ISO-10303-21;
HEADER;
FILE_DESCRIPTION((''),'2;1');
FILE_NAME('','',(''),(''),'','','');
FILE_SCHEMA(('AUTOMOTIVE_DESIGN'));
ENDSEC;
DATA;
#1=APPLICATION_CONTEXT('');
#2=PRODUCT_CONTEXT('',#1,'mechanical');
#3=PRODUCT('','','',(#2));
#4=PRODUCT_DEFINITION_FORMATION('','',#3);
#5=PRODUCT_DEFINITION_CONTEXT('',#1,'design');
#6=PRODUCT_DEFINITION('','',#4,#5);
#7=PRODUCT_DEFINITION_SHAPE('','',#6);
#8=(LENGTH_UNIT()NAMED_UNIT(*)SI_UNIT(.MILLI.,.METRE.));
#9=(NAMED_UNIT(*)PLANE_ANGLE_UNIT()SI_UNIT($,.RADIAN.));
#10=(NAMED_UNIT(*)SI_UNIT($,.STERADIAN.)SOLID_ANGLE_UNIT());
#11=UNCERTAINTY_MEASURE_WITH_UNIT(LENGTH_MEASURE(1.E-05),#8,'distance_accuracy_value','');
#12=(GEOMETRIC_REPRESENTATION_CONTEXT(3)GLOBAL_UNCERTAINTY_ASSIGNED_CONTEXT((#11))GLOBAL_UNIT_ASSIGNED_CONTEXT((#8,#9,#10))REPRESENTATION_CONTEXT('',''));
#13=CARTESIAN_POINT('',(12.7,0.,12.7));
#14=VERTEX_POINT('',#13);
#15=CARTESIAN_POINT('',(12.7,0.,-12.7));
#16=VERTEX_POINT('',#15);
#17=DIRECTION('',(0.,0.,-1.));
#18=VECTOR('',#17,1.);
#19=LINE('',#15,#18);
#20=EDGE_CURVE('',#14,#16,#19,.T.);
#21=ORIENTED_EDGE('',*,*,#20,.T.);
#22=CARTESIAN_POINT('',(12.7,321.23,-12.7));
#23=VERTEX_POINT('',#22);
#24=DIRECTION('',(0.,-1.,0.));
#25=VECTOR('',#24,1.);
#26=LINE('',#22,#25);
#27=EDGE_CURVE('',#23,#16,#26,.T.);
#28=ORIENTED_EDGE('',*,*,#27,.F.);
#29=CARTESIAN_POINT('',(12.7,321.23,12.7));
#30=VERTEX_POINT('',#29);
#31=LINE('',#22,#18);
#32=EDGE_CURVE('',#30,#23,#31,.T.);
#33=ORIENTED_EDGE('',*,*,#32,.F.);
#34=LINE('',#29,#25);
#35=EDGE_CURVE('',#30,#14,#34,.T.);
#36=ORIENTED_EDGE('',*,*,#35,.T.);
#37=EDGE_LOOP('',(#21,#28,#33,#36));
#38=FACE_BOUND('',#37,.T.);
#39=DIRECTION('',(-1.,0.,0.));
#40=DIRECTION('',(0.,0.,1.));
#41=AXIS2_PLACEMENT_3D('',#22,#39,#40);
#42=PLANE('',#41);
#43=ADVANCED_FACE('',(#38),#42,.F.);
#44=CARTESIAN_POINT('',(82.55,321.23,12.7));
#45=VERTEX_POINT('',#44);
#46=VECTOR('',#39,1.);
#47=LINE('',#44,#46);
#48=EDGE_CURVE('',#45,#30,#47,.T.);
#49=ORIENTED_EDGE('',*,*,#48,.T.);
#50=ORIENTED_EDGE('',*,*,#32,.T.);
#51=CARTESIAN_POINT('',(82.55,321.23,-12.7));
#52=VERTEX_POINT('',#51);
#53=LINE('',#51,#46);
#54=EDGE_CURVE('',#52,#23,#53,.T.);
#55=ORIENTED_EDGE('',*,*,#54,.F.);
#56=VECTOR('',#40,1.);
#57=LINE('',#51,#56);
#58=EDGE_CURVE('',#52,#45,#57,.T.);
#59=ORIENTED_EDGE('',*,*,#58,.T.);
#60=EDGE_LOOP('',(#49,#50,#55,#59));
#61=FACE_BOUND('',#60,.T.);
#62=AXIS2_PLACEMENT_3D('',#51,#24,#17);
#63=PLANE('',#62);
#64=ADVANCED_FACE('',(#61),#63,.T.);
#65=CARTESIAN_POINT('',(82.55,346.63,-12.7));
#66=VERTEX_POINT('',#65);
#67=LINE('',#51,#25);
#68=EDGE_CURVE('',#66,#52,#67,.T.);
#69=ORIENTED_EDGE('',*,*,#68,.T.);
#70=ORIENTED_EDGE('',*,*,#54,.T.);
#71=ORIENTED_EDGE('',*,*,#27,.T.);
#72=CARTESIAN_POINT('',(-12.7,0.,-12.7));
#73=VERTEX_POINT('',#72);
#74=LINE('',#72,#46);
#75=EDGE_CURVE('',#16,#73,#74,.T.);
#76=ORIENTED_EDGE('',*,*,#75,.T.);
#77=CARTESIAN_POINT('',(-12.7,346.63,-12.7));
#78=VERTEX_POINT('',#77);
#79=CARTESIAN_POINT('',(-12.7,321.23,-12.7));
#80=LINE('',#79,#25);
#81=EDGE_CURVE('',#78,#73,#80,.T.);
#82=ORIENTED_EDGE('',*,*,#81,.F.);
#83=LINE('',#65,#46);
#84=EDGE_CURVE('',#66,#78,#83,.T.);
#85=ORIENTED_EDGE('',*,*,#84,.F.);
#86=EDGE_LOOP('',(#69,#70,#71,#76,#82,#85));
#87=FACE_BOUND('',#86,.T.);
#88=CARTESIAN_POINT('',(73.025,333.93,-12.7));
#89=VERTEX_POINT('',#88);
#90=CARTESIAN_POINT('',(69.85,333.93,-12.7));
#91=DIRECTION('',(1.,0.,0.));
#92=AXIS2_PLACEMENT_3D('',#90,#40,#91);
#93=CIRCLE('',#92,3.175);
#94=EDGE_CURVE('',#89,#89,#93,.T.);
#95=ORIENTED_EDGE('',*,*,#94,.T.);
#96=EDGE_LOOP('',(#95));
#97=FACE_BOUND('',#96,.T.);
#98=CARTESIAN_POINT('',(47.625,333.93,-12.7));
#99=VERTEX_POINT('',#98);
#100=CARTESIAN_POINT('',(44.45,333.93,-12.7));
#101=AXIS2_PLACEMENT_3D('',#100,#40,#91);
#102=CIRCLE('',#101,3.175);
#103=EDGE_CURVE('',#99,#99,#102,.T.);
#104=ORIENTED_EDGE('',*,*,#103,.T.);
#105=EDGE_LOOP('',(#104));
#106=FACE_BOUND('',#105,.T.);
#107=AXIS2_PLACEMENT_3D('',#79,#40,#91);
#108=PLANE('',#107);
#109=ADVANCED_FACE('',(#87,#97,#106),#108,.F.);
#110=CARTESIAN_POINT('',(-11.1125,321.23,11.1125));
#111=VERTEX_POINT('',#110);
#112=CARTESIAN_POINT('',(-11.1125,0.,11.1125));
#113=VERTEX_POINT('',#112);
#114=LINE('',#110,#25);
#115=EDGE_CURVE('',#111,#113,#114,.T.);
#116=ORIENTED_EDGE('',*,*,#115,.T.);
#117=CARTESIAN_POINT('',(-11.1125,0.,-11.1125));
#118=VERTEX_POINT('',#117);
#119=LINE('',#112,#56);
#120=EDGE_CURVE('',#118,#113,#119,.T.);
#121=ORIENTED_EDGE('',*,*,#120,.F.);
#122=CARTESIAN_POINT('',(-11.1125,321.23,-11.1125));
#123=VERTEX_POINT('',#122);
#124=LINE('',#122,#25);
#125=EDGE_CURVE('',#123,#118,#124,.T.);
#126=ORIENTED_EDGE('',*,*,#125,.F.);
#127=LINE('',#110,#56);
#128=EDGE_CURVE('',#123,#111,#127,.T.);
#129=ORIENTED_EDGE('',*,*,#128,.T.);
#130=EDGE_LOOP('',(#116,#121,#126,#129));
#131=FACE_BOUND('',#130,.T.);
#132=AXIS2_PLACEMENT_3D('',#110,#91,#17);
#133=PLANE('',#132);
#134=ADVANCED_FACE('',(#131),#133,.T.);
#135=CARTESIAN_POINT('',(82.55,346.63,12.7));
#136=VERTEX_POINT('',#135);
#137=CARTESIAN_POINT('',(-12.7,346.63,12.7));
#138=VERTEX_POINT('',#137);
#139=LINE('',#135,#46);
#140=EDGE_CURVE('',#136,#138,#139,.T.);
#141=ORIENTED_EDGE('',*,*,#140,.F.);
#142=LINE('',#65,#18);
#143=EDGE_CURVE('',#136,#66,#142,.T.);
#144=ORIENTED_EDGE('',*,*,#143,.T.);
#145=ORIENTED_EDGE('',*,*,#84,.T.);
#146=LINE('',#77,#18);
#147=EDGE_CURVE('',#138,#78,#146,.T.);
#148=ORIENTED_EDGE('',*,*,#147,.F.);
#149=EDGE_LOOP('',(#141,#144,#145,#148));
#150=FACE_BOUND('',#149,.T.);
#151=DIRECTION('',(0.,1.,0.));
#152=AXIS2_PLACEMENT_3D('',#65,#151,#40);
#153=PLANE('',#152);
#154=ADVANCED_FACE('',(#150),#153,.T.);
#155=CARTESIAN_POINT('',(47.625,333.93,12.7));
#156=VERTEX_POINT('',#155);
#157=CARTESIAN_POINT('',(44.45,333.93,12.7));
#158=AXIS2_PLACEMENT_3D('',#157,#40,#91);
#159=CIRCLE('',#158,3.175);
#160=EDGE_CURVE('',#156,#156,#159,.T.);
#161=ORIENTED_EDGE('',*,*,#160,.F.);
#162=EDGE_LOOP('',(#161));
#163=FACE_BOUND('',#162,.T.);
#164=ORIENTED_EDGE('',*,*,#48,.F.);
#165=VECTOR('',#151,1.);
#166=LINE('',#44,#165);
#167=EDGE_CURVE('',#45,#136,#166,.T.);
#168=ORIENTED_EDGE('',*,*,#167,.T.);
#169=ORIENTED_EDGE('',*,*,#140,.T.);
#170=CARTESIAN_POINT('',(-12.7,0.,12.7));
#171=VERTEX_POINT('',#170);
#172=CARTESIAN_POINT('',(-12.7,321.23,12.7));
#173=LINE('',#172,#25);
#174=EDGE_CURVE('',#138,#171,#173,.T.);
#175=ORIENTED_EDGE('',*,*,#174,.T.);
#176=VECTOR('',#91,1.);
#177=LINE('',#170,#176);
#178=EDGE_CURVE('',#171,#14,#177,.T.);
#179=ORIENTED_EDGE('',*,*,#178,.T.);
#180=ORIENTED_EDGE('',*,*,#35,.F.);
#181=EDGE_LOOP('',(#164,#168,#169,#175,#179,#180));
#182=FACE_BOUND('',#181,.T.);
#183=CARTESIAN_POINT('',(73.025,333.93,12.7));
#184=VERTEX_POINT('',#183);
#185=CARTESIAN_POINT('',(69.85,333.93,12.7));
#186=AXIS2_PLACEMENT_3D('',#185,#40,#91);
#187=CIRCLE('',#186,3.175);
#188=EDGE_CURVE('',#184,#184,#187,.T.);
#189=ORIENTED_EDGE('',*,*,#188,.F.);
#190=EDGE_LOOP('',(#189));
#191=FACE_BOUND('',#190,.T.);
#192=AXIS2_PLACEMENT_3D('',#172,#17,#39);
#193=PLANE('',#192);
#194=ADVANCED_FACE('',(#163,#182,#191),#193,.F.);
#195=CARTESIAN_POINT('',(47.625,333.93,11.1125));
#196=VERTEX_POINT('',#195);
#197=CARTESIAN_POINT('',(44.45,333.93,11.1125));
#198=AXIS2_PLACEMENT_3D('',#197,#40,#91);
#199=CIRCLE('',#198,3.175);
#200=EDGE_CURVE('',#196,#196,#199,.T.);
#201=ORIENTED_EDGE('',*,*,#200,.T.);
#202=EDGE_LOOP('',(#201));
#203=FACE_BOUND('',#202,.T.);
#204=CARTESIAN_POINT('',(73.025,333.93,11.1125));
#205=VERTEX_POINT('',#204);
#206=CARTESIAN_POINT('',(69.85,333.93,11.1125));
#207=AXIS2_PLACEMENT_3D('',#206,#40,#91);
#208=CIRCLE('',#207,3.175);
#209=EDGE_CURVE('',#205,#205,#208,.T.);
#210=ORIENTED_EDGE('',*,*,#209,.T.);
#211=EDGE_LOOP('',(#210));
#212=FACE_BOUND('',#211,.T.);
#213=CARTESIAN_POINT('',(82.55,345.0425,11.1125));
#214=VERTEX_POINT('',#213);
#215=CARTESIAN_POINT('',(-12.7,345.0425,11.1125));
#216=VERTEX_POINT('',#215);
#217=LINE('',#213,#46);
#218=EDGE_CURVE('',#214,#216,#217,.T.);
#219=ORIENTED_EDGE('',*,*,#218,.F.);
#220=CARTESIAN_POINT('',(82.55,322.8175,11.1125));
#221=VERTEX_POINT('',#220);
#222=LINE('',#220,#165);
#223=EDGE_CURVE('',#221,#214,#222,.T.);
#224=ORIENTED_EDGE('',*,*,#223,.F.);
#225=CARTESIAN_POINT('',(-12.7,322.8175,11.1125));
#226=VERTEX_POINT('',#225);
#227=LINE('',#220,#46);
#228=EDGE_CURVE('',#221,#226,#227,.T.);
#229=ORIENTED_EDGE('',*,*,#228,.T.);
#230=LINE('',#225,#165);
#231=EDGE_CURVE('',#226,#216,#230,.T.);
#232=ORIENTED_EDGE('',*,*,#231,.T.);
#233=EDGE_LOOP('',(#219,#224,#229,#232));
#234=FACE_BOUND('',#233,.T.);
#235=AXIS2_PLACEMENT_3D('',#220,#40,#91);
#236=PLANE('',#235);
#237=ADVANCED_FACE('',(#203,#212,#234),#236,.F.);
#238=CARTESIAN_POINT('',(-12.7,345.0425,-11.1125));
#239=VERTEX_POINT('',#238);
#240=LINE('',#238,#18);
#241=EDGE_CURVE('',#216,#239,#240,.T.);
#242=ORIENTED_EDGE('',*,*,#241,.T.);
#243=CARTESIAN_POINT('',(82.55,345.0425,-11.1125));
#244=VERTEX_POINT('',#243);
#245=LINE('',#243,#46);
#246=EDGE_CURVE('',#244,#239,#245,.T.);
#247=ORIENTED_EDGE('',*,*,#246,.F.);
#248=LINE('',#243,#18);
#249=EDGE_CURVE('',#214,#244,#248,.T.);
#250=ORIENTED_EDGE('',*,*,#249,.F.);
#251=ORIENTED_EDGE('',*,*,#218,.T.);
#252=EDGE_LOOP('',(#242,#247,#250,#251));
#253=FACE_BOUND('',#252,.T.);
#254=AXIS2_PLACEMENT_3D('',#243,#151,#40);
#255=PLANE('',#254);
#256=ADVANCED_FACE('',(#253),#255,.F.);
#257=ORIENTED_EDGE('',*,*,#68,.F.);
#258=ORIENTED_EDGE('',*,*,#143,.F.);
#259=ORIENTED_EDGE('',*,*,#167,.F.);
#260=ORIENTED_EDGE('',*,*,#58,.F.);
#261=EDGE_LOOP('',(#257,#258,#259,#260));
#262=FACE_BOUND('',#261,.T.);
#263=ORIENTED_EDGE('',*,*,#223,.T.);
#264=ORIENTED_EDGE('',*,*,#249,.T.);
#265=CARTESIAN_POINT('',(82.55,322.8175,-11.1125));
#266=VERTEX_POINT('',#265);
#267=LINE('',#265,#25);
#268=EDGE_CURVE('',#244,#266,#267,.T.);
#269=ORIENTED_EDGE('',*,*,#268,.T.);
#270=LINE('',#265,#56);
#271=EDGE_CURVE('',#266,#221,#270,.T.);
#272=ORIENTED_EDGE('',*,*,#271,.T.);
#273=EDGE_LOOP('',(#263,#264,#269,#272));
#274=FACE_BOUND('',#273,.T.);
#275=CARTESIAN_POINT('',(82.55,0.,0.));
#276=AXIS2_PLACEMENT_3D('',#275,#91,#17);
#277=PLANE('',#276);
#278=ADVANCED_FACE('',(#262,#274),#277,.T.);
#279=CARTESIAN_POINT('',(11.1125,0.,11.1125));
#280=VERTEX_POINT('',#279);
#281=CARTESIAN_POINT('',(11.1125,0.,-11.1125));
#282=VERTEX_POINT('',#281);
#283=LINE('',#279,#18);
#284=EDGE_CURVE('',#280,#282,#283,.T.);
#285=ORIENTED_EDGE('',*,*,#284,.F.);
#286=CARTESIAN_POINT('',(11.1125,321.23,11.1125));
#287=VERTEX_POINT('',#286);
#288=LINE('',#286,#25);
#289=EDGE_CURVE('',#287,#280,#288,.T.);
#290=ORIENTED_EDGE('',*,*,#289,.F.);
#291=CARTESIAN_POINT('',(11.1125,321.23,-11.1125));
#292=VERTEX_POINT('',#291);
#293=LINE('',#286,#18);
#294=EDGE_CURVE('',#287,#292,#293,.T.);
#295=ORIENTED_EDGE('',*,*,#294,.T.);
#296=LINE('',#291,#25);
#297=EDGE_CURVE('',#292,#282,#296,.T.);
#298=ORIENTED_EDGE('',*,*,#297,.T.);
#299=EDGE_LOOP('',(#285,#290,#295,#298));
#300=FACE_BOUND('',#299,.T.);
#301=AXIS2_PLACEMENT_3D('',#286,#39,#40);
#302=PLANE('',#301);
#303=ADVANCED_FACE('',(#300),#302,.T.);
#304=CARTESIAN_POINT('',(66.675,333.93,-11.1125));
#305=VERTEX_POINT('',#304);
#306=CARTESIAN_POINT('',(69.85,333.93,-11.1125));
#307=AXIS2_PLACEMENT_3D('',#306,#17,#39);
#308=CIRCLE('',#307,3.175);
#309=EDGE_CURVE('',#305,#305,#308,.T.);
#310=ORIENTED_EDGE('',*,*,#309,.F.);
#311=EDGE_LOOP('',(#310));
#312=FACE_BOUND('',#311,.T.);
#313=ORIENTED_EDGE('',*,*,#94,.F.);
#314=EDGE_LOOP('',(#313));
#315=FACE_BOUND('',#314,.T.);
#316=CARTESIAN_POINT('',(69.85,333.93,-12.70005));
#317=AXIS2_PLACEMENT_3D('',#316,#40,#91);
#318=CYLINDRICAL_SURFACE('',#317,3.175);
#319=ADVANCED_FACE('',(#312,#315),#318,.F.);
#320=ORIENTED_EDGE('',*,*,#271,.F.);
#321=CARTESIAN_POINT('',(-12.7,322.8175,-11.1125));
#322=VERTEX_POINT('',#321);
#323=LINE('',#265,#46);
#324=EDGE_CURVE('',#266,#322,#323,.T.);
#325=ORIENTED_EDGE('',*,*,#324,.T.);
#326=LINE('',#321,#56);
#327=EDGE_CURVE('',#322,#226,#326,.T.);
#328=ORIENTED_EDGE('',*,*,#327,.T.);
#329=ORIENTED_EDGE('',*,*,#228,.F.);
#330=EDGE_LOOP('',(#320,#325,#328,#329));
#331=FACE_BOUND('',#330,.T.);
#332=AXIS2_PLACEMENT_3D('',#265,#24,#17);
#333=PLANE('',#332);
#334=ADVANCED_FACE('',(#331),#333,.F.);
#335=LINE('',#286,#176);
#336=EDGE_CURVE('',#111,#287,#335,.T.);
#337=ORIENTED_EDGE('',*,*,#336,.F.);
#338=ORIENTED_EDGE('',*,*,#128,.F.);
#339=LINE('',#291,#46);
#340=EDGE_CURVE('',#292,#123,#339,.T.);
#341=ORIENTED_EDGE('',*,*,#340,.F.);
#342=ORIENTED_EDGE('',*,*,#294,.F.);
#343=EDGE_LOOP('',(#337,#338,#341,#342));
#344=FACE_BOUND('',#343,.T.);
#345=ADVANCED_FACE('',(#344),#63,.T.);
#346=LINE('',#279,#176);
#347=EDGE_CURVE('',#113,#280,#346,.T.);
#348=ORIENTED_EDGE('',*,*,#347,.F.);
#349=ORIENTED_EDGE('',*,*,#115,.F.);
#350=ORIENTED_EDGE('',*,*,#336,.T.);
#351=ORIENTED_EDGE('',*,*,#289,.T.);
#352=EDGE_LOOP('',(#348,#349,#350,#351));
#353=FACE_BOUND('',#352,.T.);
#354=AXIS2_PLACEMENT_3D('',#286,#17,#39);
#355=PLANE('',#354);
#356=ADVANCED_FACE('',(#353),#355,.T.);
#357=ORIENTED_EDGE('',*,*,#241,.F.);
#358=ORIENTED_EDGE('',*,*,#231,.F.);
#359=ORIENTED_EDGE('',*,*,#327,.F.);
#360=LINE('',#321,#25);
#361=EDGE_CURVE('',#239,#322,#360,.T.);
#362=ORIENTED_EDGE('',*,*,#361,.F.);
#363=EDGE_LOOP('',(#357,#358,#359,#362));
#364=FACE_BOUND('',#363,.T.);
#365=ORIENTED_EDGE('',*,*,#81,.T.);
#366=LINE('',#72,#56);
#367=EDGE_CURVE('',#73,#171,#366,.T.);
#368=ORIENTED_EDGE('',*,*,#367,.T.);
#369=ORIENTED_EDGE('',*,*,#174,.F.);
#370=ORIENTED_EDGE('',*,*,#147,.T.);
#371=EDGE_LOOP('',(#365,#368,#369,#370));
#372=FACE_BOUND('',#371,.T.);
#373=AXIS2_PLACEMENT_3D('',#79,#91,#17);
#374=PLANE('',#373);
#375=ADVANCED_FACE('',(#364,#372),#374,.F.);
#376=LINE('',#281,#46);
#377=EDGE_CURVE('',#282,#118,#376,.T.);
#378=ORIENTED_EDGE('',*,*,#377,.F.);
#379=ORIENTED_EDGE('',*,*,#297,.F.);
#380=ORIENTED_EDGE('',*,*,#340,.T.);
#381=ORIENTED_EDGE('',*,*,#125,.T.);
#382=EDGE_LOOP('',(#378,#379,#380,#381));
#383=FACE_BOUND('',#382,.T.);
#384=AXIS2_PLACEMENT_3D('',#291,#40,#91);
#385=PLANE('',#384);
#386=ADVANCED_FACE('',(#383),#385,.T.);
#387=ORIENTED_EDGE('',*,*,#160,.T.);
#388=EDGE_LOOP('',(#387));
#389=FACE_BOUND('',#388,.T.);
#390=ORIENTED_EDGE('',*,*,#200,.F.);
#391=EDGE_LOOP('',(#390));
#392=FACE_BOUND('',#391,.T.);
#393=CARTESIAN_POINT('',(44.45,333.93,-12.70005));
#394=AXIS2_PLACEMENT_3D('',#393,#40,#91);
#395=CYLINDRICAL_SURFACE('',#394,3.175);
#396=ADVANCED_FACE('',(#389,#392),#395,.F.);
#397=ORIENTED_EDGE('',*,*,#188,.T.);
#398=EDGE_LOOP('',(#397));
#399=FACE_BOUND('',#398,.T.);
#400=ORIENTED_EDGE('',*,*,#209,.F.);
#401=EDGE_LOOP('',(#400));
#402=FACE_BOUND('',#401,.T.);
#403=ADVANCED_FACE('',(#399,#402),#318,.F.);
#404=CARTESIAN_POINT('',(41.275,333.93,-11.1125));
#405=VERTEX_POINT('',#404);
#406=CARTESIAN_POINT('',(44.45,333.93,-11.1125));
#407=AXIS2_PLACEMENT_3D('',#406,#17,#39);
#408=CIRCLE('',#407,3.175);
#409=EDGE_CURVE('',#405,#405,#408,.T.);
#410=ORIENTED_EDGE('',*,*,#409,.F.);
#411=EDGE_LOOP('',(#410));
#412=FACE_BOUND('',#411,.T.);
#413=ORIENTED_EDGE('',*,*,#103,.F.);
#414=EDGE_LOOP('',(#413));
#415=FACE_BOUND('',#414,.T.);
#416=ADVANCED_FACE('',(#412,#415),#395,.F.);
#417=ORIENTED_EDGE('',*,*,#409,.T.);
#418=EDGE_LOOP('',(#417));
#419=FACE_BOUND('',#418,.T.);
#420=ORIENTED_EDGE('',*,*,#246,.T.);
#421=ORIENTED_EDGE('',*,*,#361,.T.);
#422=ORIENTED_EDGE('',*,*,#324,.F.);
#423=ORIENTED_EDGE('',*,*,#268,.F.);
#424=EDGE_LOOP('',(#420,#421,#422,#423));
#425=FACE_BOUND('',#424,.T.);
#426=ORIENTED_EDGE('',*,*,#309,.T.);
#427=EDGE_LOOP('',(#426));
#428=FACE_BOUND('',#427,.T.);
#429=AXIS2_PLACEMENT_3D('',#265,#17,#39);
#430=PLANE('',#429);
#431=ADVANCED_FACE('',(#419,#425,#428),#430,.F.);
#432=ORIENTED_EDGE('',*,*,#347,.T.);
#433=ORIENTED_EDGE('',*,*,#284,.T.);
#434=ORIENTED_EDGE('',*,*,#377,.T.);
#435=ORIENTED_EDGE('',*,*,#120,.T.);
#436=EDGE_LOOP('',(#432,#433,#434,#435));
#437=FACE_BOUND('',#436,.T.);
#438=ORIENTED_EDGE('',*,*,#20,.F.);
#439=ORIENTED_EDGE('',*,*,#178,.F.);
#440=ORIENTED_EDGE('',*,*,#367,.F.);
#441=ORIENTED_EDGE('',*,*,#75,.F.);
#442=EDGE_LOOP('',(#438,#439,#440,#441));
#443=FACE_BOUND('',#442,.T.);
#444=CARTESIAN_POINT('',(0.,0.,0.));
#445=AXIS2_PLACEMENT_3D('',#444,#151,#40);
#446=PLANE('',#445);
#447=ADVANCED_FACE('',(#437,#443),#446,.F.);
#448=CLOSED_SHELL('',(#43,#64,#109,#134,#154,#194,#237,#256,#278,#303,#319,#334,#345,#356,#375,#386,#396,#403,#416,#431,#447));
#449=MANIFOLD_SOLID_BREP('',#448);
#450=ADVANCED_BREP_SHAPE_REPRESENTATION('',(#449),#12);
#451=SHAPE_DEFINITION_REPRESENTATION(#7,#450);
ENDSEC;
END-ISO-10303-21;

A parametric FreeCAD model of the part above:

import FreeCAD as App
import Part
import Sketcher

V = App.Vector
Q = App.Units.Quantity


def add_polygon(sketch, points):
    """Adds a closed chain of lines whose ends are joined by coincident constraints."""
    first, n = sketch.GeometryCount, len(points)
    for a, b in zip(points, points[1:] + points[:1]):
        sketch.addGeometry(Part.LineSegment(App.Vector(*a, 0), App.Vector(*b, 0)), False)
    for i in range(n):
        sketch.addConstraint(Sketcher.Constraint("Coincident", first + i, 2, first + (i + 1) % n, 1))

doc = App.newDocument("Part")
body = doc.addObject("PartDesign::Body", "Body")

# Sketch on XZ plane
sketch1 = doc.addObject("Sketcher::SketchObject", "Sketch")
body.addObject(sketch1)
sketch1.AttachmentSupport = (doc.XZ_Plane, [""])
sketch1.MapMode = "FlatFace"
add_polygon(sketch1, [(-13, -13), (-13, 13), (13, 13), (13, -13)])  # lines 0-3
add_polygon(sketch1, [(11, 11), (-11, 11), (-11, -11), (11, -11)])  # lines 4-7
sketch1.addConstraint(Sketcher.Constraint("Vertical", 0))
sketch1.addConstraint(Sketcher.Constraint("Horizontal", 1))
sketch1.addConstraint(Sketcher.Constraint("Vertical", 2))
sketch1.addConstraint(Sketcher.Constraint("Horizontal", 3))
sketch1.addConstraint(Sketcher.Constraint("Horizontal", 4))
sketch1.addConstraint(Sketcher.Constraint("Vertical", 5))
sketch1.addConstraint(Sketcher.Constraint("Horizontal", 6))
sketch1.addConstraint(Sketcher.Constraint("Vertical", 7))
sketch1.addConstraint(Sketcher.Constraint("Symmetric", 0, 2, 2, 2, -1, 1))
sketch1.addConstraint(Sketcher.Constraint("Symmetric", 4, 2, 6, 2, -1, 1))
sketch1.addConstraint(Sketcher.Constraint("Equal", 3, 0))
sketch1.addConstraint(Sketcher.Constraint("Equal", 6, 5))
sketch1.addConstraint(Sketcher.Constraint("DistanceX", 1, 1, 1, 2, Q("1 in")))
sketch1.addConstraint(Sketcher.Constraint("DistanceX", 4, 2, 4, 1, Q("0.875 in")))
pad1 = doc.addObject("PartDesign::Pad", "Pad")
body.addObject(pad1)
pad1.Profile = sketch1
pad1.Length = 321.23
pad1.Reversed = True

# Sketch on YZ plane
sketch2 = doc.addObject("Sketcher::SketchObject", "Sketch001")
body.addObject(sketch2)
sketch2.AttachmentSupport = (doc.YZ_Plane, [""])
sketch2.MapMode = "FlatFace"
sketch2.AttachmentOffset = App.Placement(V(0, 0, -0.5 * 25.4), App.Rotation())
add_polygon(sketch2, [(347, -13), (321, -13), (321, 13), (347, 13)])  # lines 0-3
add_polygon(sketch2, [(323, 11), (323, -11), (345, -11), (345, 11)])  # lines 4-7
sketch2.addConstraint(Sketcher.Constraint("Horizontal", 0))
sketch2.addConstraint(Sketcher.Constraint("Vertical", 1))
sketch2.addConstraint(Sketcher.Constraint("Horizontal", 2))
sketch2.addConstraint(Sketcher.Constraint("Vertical", 3))
sketch2.addConstraint(Sketcher.Constraint("Vertical", 4))
sketch2.addConstraint(Sketcher.Constraint("Horizontal", 5))
sketch2.addConstraint(Sketcher.Constraint("Vertical", 6))
sketch2.addConstraint(Sketcher.Constraint("Horizontal", 7))
sketch2.addConstraint(Sketcher.Constraint("Equal", 2, 1))
sketch2.addConstraint(Sketcher.Constraint("Equal", 7, 4))
sketch2.addConstraint(Sketcher.Constraint("DistanceX", 0, 2, 0, 1, Q("1 in")))
sketch2.addConstraint(Sketcher.Constraint("DistanceY", 0, 2, -1, 1, Q("0.5 in")))
sketch2.addConstraint(Sketcher.Constraint("DistanceX", 5, 1, 5, 2, Q("0.875 in")))
sketch2.addConstraint(Sketcher.Constraint("DistanceY", 4, 2, -1, 1, Q("0.4375 in")))
sketch2.addConstraint(Sketcher.Constraint("DistanceX", 0, 2, 4, 2, Q("0.0625 in")))
sketch2.addConstraint(Sketcher.Constraint("DistanceX", -1, 1, 0, 2, 321.23))
pad2 = doc.addObject("PartDesign::Pad", "Pad001")
body.addObject(pad2)
pad2.Profile = sketch2
pad2.Length = Q("3.75 in")

# Sketch on XY plane
sketch3 = doc.addObject("Sketcher::SketchObject", "Sketch002")
body.addObject(sketch3)
sketch3.AttachmentSupport = (doc.XY_Plane, [""])
sketch3.MapMode = "FlatFace"
sketch3.AttachmentOffset = App.Placement(V(0, 0, 0.5 * 25.4), App.Rotation())
sketch3.addGeometry(Part.Circle(V(44.5, 333.9, 0), V(0, 0, 1), 3.2), False)
sketch3.addGeometry(Part.Circle(V(69.8, 333.9, 0), V(0, 0, 1), 3.2), False)
sketch3.addConstraint(Sketcher.Constraint("Equal", 0, 1))
sketch3.addConstraint(Sketcher.Constraint("Horizontal", 0, 3, 1, 3))
sketch3.addConstraint(Sketcher.Constraint("Diameter", 0, Q("0.25 in")))
sketch3.addConstraint(Sketcher.Constraint("DistanceX", 0, 3, 1, 3, Q("1 in")))
sketch3.addConstraint(Sketcher.Constraint("DistanceX", -1, 1, 0, 3, Q("1.75 in")))
sketch3.addConstraint(Sketcher.Constraint("DistanceY", -1, 1, 0, 3, 333.93))
pocket1 = doc.addObject("PartDesign::Pocket", "Pocket")
body.addObject(pocket1)
pocket1.Profile = sketch3
pocket1.Type = "ThroughAll"

doc.recompute()
